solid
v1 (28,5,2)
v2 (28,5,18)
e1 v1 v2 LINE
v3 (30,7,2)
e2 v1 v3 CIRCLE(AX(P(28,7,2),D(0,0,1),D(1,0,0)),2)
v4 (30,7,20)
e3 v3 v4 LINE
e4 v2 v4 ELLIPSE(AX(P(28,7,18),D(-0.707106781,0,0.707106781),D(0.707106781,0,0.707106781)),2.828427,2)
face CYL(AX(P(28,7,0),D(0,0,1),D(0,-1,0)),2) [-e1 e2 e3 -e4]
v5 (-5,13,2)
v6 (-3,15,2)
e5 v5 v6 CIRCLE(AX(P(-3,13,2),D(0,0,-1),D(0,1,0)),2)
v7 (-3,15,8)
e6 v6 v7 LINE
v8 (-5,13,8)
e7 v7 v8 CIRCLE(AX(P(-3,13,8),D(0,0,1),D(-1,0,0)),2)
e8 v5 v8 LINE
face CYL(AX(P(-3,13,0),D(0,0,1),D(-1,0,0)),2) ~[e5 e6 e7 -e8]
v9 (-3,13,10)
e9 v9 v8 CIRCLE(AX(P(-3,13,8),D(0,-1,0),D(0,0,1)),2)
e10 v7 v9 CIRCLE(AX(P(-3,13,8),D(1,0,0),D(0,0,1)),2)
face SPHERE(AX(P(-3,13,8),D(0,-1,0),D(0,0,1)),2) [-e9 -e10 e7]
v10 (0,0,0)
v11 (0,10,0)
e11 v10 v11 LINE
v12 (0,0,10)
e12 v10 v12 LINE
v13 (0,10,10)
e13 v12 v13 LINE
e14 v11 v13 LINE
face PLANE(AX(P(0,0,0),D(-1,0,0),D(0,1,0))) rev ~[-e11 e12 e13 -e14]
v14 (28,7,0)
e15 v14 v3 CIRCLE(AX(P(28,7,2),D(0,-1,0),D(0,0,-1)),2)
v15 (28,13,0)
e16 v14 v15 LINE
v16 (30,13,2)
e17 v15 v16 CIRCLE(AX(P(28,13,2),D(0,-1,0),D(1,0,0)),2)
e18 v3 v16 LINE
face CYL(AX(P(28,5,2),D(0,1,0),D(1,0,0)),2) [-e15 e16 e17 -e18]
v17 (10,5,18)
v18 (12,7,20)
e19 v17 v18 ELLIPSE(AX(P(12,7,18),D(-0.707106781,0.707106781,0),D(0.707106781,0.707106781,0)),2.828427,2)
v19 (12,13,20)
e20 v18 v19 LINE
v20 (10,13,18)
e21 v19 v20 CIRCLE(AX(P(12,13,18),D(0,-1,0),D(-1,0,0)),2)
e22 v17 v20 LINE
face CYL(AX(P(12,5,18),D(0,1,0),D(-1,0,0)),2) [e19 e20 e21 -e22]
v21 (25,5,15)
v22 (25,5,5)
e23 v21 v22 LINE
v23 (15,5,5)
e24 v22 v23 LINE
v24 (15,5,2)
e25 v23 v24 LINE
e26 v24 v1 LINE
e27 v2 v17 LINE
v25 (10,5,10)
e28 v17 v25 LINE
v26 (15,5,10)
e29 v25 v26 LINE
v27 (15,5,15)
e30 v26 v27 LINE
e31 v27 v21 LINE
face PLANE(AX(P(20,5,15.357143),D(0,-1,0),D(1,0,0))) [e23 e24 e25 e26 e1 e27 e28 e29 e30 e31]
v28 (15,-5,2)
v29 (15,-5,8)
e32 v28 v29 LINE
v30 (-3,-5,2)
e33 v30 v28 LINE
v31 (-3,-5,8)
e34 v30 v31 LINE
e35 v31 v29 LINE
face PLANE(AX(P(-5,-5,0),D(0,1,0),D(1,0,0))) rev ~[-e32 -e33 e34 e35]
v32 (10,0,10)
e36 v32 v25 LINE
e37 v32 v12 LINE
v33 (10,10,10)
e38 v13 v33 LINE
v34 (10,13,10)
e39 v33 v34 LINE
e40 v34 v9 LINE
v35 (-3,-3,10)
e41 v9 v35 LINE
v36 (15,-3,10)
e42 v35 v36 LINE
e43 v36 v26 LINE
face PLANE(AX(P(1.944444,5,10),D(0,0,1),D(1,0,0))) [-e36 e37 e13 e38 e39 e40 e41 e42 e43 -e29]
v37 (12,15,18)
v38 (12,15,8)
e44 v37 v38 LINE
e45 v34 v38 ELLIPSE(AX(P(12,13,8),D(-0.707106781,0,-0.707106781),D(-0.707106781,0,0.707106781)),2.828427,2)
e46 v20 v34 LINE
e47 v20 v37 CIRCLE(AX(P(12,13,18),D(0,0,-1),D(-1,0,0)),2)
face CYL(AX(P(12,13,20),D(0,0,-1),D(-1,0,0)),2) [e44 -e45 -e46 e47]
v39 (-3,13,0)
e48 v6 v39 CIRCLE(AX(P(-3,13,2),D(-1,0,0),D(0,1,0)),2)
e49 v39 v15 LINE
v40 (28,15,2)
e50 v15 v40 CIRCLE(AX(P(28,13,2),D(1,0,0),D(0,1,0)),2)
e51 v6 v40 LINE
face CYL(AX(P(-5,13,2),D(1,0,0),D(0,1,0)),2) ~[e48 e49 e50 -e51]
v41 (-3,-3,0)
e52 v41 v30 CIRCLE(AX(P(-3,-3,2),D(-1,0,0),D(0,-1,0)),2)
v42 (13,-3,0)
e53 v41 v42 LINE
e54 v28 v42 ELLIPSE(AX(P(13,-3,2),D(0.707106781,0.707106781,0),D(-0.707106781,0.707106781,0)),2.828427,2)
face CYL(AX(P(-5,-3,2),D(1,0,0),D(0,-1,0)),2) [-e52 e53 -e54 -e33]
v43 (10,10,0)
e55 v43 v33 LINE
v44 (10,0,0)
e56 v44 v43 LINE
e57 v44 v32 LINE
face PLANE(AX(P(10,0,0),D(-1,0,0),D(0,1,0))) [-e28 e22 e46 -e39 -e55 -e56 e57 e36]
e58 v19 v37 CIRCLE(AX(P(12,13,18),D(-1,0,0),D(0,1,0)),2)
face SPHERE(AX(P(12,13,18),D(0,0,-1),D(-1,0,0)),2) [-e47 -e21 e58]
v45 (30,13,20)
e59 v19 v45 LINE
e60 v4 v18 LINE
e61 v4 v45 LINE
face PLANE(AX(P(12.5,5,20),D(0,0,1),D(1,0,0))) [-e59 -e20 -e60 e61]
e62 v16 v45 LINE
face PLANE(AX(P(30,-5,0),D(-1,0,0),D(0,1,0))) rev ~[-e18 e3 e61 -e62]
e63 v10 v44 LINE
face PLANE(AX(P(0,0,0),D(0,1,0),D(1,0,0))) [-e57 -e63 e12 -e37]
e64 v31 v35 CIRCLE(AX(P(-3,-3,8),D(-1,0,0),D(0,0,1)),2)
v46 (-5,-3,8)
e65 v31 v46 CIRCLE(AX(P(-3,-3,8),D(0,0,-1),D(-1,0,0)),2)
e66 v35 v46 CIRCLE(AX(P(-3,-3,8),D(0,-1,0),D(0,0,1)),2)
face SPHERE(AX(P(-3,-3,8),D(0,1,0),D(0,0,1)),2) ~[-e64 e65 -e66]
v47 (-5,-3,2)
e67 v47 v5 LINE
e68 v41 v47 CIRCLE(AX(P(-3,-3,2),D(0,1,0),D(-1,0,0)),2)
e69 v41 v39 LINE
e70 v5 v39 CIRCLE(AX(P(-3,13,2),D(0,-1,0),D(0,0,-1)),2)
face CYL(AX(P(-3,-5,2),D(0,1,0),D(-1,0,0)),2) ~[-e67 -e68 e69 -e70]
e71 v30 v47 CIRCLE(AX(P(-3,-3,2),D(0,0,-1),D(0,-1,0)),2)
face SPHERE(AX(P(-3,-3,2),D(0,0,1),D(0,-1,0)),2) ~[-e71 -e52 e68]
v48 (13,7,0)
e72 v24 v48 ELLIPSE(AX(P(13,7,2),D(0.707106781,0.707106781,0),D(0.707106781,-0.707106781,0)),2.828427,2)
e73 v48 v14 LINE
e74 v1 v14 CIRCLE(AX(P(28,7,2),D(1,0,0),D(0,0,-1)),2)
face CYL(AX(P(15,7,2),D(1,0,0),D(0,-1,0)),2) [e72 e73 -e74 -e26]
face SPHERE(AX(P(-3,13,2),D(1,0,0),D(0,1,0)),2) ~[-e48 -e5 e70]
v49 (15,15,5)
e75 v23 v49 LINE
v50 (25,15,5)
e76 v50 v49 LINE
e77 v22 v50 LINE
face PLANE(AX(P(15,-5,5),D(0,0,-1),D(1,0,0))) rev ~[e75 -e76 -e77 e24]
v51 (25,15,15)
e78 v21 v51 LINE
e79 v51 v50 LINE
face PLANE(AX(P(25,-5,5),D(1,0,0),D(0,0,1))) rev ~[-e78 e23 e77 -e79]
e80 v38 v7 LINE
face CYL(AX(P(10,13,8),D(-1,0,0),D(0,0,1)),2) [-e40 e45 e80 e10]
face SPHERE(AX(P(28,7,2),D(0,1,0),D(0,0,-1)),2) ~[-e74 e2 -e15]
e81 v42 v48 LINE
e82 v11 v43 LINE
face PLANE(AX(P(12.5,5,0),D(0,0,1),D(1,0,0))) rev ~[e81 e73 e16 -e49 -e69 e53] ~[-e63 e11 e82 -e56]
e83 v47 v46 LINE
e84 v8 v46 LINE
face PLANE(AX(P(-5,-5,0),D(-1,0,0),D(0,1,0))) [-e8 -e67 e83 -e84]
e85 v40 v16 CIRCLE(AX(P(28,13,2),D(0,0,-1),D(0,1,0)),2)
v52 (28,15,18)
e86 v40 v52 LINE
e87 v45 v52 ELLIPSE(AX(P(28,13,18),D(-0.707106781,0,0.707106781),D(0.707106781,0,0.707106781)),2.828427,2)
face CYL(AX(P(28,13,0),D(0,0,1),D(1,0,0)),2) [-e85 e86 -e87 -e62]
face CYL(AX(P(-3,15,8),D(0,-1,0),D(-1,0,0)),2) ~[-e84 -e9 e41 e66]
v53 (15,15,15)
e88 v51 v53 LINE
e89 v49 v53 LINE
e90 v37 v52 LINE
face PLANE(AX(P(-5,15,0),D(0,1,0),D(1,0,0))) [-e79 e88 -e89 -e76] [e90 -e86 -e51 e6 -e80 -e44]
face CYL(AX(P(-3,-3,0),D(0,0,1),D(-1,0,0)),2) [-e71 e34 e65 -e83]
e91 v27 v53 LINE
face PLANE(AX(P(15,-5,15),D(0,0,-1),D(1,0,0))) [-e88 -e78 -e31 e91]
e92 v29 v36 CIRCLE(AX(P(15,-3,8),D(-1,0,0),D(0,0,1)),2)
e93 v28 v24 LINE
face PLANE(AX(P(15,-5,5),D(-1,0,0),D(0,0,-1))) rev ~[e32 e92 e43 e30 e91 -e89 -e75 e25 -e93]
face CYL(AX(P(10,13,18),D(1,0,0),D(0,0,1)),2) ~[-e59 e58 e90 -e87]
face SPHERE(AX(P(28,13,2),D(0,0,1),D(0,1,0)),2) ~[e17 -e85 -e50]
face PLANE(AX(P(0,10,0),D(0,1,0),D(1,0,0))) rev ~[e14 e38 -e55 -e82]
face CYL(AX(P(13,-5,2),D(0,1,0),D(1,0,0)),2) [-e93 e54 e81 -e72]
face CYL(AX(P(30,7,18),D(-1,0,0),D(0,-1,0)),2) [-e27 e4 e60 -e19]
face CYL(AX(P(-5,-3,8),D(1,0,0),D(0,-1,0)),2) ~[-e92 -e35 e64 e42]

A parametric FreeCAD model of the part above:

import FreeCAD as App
import Part
import Sketcher
Q = App.Units.Quantity


def edges_at(feature, points):
    """Names of the edges that pass closest to the given points."""
    edges = feature.Shape.Edges
    near = lambda p: min(range(len(edges)), key=lambda i: edges[i].distToShape(Part.Vertex(*p))[0])
    return sorted({f"Edge{near(p) + 1}" for p in points})


def add_polygon(sketch, points):
    """Adds a closed chain of lines whose ends are joined by coincident constraints."""
    first, n = sketch.GeometryCount, len(points)
    for a, b in zip(points, points[1:] + points[:1]):
        sketch.addGeometry(Part.LineSegment(App.Vector(*a, 0), App.Vector(*b, 0)), False)
    for i in range(n):
        sketch.addConstraint(Sketcher.Constraint("Coincident", first + i, 2, first + (i + 1) % n, 1))

doc = App.newDocument("Part")
body = doc.addObject("PartDesign::Body", "Body")

# Sketch on XY plane
sketch1 = body.newObject("Sketcher::SketchObject", "Sketch")
sketch1.AttachmentSupport = (doc.getObject("XY_Plane"), [""])
sketch1.MapMode = "FlatFace"
add_polygon(sketch1, [(-5, 15), (-5, -5), (30, -5), (30, 15)])  # lines 0-3
add_polygon(sketch1, [(10, 0), (0, 0), (0, 10), (10, 10)])  # lines 4-7
sketch1.addConstraint([
    Sketcher.Constraint("Vertical", 0),
    Sketcher.Constraint("Horizontal", 1),
    Sketcher.Constraint("Vertical", 2),
    Sketcher.Constraint("Horizontal", 3),
    Sketcher.Constraint("Horizontal", 4),
    Sketcher.Constraint("Vertical", 5),
    Sketcher.Constraint("Horizontal", 6),
    Sketcher.Constraint("Vertical", 7),
    Sketcher.Constraint("Coincident", 4, 2, -1, 1),
    Sketcher.Constraint("Equal", 6, 5),
    Sketcher.Constraint("DistanceX", 1, 1, 1, 2, Q("35 mm")),
    Sketcher.Constraint("DistanceX", 4, 2, 4, 1, Q("10 mm")),
    Sketcher.Constraint("DistanceY", 0, 2, 0, 1, Q("20 mm")),
    Sketcher.Constraint("DistanceX", 0, 2, -1, 1, Q("5 mm")),
    Sketcher.Constraint("DistanceY", 0, 2, -1, 1, Q("5 mm")),
])
pad1 = body.newObject("PartDesign::Pad", "Pad")
pad1.Profile = sketch1
pad1.Length = 20

# Sketch on XZ plane
sketch2 = body.newObject("Sketcher::SketchObject", "Sketch001")
sketch2.AttachmentSupport = (doc.getObject("XZ_Plane"), [""])
sketch2.MapMode = "FlatFace"
sketch2.AttachmentOffset = App.Placement(App.Vector(0, 0, 5), App.Rotation())
add_polygon(sketch2, [(15, 15), (15, 5), (25, 5), (25, 15)])  # lines 0-3
sketch2.addConstraint([
    Sketcher.Constraint("Vertical", 0),
    Sketcher.Constraint("Horizontal", 1),
    Sketcher.Constraint("Vertical", 2),
    Sketcher.Constraint("Horizontal", 3),
    Sketcher.Constraint("Equal", 3, 0),
    Sketcher.Constraint("DistanceX", 1, 1, 1, 2, Q("10 mm")),
    Sketcher.Constraint("DistanceX", -1, 1, 0, 2, Q("15 mm")),
    Sketcher.Constraint("DistanceY", -1, 1, 0, 2, Q("5 mm")),
])
pocket1 = body.newObject("PartDesign::Pocket", "Pocket")
pocket1.Profile = sketch2
pocket1.Length = 25

# Sketch on XY plane
sketch3 = body.newObject("Sketcher::SketchObject", "Sketch002")
sketch3.AttachmentSupport = (doc.getObject("XY_Plane"), [""])
sketch3.MapMode = "FlatFace"
sketch3.AttachmentOffset = App.Placement(App.Vector(0, 0, 20), App.Rotation())
add_polygon(sketch3, [(10, 10), (10, 15), (-5, 15), (-5, -5), (10, -5), (10, 0), (0, 0), (0, 10)])  # lines 0-7
sketch3.addConstraint([
    Sketcher.Constraint("Vertical", 0),
    Sketcher.Constraint("Horizontal", 1),
    Sketcher.Constraint("Vertical", 2),
    Sketcher.Constraint("Horizontal", 3),
    Sketcher.Constraint("Vertical", 4),
    Sketcher.Constraint("Horizontal", 5),
    Sketcher.Constraint("Vertical", 6),
    Sketcher.Constraint("Horizontal", 7),
    Sketcher.Constraint("Coincident", 5, 2, -1, 1),
    Sketcher.Constraint("Vertical", 0, 2, 3, 2),
    Sketcher.Constraint("Equal", 0, 4),
    Sketcher.Constraint("Equal", 7, 6),
    Sketcher.Constraint("DistanceX", 1, 2, 1, 1, Q("15 mm")),
    Sketcher.Constraint("DistanceX", 5, 2, 5, 1, Q("10 mm")),
    Sketcher.Constraint("DistanceY", 0, 1, 0, 2, Q("5 mm")),
])
pocket2 = body.newObject("PartDesign::Pocket", "Pocket001")
pocket2.Profile = sketch3
pocket2.Length = 10

# Sketch on XZ plane
sketch4 = body.newObject("Sketcher::SketchObject", "Sketch003")
sketch4.AttachmentSupport = (doc.getObject("XZ_Plane"), [""])
sketch4.MapMode = "FlatFace"
sketch4.AttachmentOffset = App.Placement(App.Vector(0, 0, 5), App.Rotation())
add_polygon(sketch4, [(15, 10), (15, 15), (25, 15), (25, 5), (15, 5), (15, 0), (30, 0), (30, 20), (10, 20), (10, 10)])  # lines 0-9
sketch4.addConstraint([
    Sketcher.Constraint("Vertical", 0),
    Sketcher.Constraint("Horizontal", 1),
    Sketcher.Constraint("Vertical", 2),
    Sketcher.Constraint("Horizontal", 3),
    Sketcher.Constraint("Vertical", 4),
    Sketcher.Constraint("Horizontal", 5),
    Sketcher.Constraint("Vertical", 6),
    Sketcher.Constraint("Horizontal", 7),
    Sketcher.Constraint("Vertical", 8),
    Sketcher.Constraint("Horizontal", 9),
    Sketcher.Constraint("PointOnObject", 4, 2, -1),
    Sketcher.Constraint("Vertical", 0, 2, 3, 2),
    Sketcher.Constraint("Equal", 9, 0),
    Sketcher.Constraint("Equal", 3, 2),
    Sketcher.Constraint("Equal", 0, 4),
    Sketcher.Constraint("Equal", 7, 6),
    Sketcher.Constraint("Equal", 2, 8),
    Sketcher.Constraint("DistanceX", 1, 1, 1, 2, Q("10 mm")),
    Sketcher.Constraint("DistanceX", 5, 1, 5, 2, Q("15 mm")),
    Sketcher.Constraint("DistanceX", -1, 1, 0, 2, Q("15 mm")),
])
pocket3 = body.newObject("PartDesign::Pocket", "Pocket002")
pocket3.Profile = sketch4
pocket3.Length = 10
doc.recompute()

fillet = body.newObject("PartDesign::Fillet", "Fillet")
fillet.Base = (pocket3, edges_at(pocket3, [
    (-5, 5, 10),
    (5, -5, 10),
    (2.5, 15, 10),
    (10, 15, 15),
    (10, 10, 20),
    (20, 15, 20),
    (30, 15, 10),
    (12.5, 15, 0),
    (-5, 15, 5),
    (-5, -5, 5),
    (30, 10, 0),
    (22.5, 5, 0),
    (15, 0, 0),
    (30, 5, 10),
    (20, 5, 20),
    (5, -5, 0),
    (-5, 5, 0),
]))
fillet.Radius = 2

doc.recompute()
